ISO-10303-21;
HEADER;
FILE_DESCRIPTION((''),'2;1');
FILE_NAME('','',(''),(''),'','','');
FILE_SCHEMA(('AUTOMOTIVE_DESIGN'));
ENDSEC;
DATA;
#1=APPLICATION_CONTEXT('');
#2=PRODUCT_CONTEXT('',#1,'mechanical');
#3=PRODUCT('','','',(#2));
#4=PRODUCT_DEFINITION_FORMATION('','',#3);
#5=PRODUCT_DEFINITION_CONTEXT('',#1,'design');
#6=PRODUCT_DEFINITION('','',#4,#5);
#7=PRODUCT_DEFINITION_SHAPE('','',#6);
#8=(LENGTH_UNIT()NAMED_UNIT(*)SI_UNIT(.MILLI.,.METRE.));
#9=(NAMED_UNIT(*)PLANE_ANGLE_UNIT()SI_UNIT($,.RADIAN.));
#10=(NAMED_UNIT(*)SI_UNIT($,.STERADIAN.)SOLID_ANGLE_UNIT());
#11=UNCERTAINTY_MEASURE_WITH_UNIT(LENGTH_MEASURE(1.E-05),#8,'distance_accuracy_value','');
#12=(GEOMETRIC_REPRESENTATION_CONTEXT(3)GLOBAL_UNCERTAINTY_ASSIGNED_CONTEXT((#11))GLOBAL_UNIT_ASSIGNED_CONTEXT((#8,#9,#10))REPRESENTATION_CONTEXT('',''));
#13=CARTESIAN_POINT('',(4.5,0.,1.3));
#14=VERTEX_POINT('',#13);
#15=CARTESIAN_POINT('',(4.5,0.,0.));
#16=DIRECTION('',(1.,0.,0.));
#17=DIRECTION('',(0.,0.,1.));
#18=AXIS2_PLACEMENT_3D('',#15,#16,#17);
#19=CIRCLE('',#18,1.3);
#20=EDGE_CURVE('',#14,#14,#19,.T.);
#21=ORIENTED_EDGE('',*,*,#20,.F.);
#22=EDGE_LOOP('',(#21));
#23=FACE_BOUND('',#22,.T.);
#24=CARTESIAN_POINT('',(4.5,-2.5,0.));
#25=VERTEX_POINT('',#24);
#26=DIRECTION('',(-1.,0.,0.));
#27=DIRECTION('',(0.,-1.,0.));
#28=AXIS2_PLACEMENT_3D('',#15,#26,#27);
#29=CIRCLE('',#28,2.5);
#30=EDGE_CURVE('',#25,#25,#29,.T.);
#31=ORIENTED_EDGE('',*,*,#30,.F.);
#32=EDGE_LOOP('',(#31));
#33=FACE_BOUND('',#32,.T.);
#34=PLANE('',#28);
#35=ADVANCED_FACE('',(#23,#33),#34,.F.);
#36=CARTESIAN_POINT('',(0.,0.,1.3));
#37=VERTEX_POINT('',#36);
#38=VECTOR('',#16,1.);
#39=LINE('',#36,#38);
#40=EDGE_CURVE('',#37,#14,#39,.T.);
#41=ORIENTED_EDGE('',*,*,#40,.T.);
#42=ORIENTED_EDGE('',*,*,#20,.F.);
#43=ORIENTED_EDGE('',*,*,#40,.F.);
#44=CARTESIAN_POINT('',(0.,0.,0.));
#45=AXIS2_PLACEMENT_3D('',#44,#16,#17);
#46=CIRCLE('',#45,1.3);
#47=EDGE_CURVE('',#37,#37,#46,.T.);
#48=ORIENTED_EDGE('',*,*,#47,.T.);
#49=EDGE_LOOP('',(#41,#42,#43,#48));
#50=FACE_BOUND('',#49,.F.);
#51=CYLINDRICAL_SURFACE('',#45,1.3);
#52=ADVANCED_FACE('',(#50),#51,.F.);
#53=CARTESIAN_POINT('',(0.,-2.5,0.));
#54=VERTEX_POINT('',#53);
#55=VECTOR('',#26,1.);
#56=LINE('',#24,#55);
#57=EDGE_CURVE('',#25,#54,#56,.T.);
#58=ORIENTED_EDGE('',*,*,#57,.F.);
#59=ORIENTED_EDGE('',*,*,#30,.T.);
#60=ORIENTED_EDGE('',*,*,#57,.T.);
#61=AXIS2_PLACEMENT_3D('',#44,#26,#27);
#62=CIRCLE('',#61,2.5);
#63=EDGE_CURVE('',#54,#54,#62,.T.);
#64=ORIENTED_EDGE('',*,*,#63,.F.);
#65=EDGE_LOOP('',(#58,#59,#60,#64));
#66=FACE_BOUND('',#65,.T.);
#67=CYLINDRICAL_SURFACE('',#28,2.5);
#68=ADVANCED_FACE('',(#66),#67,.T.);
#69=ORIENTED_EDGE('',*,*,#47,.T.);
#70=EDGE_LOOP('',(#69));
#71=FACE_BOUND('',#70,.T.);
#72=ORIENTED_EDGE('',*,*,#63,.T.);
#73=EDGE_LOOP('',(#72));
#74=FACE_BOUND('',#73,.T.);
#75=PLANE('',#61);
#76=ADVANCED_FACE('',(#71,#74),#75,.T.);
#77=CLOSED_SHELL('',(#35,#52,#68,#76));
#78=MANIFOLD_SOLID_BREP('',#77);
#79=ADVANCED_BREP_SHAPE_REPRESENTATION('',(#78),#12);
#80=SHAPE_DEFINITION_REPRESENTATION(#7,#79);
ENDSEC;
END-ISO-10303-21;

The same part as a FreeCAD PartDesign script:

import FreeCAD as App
import Part
import Sketcher
from FreeCAD import Vector
Q = App.Units.Quantity

doc = App.newDocument("Part")
body = doc.addObject("PartDesign::Body", "Body")

# Sketch on XY plane
sketch1 = body.newObject("Sketcher::SketchObject", "Sketch")
sketch1.AttachmentSupport = (doc.getObject("XY_Plane"), [""])
sketch1.MapMode = "FlatFace"
sketch1.addGeometry(Part.LineSegment(Vector(4.5, 0, 0), Vector(0, 0, 0)), False)
sketch1.addGeometry(Part.LineSegment(Vector(0, 0, 0), Vector(0, -2.5, 0)), False)
sketch1.addGeometry(Part.LineSegment(Vector(0, -2.5, 0), Vector(4.5, -2.5, 0)), False)
sketch1.addGeometry(Part.LineSegment(Vector(4.5, -2.5, 0), Vector(4.5, 0, 0)), False)
sketch1.addConstraint(Sketcher.Constraint("Coincident", 0, 2, 1, 1))
sketch1.addConstraint(Sketcher.Constraint("Coincident", 1, 2, 2, 1))
sketch1.addConstraint(Sketcher.Constraint("Coincident", 2, 2, 3, 1))
sketch1.addConstraint(Sketcher.Constraint("Coincident", 3, 2, 0, 1))
sketch1.addConstraint(Sketcher.Constraint("Horizontal", 0))
sketch1.addConstraint(Sketcher.Constraint("Vertical", 1))
sketch1.addConstraint(Sketcher.Constraint("Horizontal", 2))
sketch1.addConstraint(Sketcher.Constraint("Vertical", 3))
sketch1.addConstraint(Sketcher.Constraint("Coincident", 0, 2, -1, 1))
sketch1.addConstraint(Sketcher.Constraint("DistanceX", 0, 2, 0, 1, Q("4.5 mm")))
sketch1.addConstraint(Sketcher.Constraint("DistanceY", 1, 2, 1, 1, Q("2.5 mm")))
revolution = body.newObject("PartDesign::Revolution", "Revolution")
revolution.Profile = sketch1
revolution.ReferenceAxis = (sketch1, ["H_Axis"])
revolution.Angle = 360

# Sketch on YZ plane
sketch2 = body.newObject("Sketcher::SketchObject", "Sketch001")
sketch2.AttachmentSupport = (doc.getObject("YZ_Plane"), [""])
sketch2.MapMode = "FlatFace"
sketch2.addGeometry(Part.Circle(Vector(0, 0, 0), Vector(0, 0, 1), 1.3), False)
sketch2.addConstraint(Sketcher.Constraint("Coincident", 0, 3, -1, 1))
sketch2.addConstraint(Sketcher.Constraint("Diameter", 0, Q("2.6 mm")))
doc.recompute()
hole = body.newObject("PartDesign::Hole", "Hole")
hole.Profile = sketch2
hole.ThreadType = "None"
hole.Diameter = 2.6
hole.DepthType = "Dimension"
hole.Depth = 4.5
hole.DrillPoint = "Flat"
hole.Reversed = True

doc.recompute()
